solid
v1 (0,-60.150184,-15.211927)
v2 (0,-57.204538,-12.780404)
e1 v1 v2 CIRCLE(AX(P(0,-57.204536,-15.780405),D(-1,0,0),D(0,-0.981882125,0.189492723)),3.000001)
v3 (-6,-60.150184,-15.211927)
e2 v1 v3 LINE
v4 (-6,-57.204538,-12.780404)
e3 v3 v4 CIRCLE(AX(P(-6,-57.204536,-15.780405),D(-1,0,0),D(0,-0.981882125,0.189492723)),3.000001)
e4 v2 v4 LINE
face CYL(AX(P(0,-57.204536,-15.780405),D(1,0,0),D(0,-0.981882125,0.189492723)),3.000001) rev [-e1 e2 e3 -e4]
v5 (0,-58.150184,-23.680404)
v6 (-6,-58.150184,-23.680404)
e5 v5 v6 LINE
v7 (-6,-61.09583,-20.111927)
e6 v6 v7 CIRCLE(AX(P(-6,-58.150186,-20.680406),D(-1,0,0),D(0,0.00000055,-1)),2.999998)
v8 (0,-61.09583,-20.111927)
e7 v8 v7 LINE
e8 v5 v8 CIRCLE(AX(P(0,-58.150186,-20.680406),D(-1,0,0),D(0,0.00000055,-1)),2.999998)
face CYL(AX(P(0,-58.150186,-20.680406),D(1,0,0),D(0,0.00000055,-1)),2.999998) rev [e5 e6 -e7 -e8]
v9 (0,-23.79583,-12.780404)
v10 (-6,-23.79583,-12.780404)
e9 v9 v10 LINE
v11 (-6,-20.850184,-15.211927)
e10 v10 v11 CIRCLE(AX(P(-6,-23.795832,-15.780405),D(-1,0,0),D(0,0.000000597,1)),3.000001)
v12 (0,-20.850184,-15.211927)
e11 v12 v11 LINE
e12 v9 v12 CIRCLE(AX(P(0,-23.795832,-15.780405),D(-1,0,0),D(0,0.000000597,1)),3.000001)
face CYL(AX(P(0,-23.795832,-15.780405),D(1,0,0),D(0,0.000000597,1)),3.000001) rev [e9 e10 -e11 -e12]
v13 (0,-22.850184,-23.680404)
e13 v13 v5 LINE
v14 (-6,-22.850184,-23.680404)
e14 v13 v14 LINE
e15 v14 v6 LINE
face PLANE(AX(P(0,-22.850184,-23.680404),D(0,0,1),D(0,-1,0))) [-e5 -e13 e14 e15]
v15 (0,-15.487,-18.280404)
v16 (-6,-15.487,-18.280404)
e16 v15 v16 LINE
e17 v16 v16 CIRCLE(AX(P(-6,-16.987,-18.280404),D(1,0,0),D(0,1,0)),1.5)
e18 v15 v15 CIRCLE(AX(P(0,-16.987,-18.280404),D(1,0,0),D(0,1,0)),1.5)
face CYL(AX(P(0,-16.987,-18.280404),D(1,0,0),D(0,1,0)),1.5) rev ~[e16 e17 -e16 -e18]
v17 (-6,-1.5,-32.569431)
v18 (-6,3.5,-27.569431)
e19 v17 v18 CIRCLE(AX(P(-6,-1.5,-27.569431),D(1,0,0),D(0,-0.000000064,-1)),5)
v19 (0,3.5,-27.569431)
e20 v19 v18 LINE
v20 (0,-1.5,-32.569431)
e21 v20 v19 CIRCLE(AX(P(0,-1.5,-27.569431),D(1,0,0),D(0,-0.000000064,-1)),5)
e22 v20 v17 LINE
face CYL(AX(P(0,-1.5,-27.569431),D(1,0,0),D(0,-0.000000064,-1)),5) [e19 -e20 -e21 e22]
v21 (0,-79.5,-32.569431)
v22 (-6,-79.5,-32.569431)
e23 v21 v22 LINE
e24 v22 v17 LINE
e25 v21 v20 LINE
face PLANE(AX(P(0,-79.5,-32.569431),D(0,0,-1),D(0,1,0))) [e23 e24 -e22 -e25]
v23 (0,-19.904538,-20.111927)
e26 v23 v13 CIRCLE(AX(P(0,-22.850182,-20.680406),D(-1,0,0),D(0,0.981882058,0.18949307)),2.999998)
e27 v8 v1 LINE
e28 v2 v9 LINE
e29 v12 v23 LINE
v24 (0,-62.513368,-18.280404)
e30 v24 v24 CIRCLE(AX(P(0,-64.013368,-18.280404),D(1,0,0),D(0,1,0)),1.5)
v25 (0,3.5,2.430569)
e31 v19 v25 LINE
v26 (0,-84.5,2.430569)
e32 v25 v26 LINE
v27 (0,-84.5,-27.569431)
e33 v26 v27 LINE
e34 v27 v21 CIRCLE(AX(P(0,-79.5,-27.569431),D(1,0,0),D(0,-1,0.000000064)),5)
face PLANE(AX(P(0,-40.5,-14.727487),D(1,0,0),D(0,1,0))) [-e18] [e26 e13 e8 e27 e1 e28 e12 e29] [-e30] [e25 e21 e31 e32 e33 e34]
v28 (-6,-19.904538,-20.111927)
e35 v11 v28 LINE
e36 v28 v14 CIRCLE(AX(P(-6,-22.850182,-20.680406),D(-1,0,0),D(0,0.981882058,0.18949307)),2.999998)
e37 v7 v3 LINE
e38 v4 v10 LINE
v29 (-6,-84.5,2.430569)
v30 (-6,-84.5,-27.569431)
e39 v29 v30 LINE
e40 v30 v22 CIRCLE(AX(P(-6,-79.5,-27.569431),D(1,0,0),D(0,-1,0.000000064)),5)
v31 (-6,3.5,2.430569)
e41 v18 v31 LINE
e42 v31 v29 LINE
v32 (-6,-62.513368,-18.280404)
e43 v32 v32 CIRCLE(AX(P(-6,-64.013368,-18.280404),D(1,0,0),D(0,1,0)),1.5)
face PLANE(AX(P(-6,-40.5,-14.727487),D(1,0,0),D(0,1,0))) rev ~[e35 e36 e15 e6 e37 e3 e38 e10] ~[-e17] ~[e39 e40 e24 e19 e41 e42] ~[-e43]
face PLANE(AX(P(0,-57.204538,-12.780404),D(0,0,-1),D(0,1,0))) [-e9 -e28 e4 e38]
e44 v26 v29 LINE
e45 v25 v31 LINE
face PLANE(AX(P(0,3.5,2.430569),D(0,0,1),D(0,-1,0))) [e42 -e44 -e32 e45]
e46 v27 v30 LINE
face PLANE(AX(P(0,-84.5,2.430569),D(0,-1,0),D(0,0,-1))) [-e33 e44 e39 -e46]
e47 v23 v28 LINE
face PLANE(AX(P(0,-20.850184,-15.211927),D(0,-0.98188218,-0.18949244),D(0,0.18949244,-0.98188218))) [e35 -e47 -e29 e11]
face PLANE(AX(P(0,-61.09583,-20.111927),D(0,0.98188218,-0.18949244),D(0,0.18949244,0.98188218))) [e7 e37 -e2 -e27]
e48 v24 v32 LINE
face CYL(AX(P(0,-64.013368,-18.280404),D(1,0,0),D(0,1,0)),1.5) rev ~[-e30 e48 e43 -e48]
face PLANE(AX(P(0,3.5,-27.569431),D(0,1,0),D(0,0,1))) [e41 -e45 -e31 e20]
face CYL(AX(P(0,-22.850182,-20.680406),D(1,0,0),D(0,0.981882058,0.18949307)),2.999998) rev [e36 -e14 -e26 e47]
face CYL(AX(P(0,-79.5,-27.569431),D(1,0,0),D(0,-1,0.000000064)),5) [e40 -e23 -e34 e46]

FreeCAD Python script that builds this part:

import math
import FreeCAD as App
import Part
import Sketcher

doc = App.newDocument("Part")
params = doc.addObject("Spreadsheet::Sheet", "Params")
for row, (alias, value) in enumerate([
    ("sketch1_diameter", "3 mm"),
    ("sketch1_radius", "5 mm"),
    ("sketch1_radius2", "2.999998 mm"),
    ("sketch1_radius3", "3.000001 mm"),
    ("sketch1_width", "78 mm"),
    ("pad1_length", "6 mm"),
], start=1):
    params.set(f"A{row}", alias)
    params.set(f"B{row}", "=" + value)
    params.setAlias(f"B{row}", alias)

body = doc.addObject("PartDesign::Body", "Body")

# Sketch on YZ plane
sketch1 = body.newObject("Sketcher::SketchObject", "Sketch")
sketch1.AttachmentSupport = (doc.getObject("YZ_Plane"), [""])
sketch1.MapMode = "FlatFace"
sketch1.addGeometry([
    Part.LineSegment(App.Vector(-84.5, 2.4, 0), App.Vector(-84.5, -27.6, 0)),  # 0
    Part.ArcOfCircle(Part.Circle(App.Vector(-79.5, -27.6, 0), App.Vector(0, 0, 1), 5), math.radians(180), math.radians(270)),  # 1
    Part.LineSegment(App.Vector(-79.5, -32.6, 0), App.Vector(-1.5, -32.6, 0)),  # 2
    Part.ArcOfCircle(Part.Circle(App.Vector(-1.5, -27.6, 0), App.Vector(0, 0, 1), 5), math.radians(-90), math.radians(0)),  # 3
    Part.LineSegment(App.Vector(3.5, -27.6, 0), App.Vector(3.5, 2.4, 0)),  # 4
    Part.LineSegment(App.Vector(3.5, 2.4, 0), App.Vector(-84.5, 2.4, 0)),  # 5
    Part.Circle(App.Vector(-64, -18.3, 0), App.Vector(0, 0, 1), 1.5),  # 6
    Part.Circle(App.Vector(-17, -18.3, 0), App.Vector(0, 0, 1), 1.5),  # 7
    Part.ArcOfCircle(Part.Circle(App.Vector(-58.2, -20.7, 0), App.Vector(0, 0, 1), 3), math.radians(169), math.radians(270)),  # 8
    Part.LineSegment(App.Vector(-61.1, -20.1, 0), App.Vector(-60.2, -15.2, 0)),  # 9
    Part.ArcOfCircle(Part.Circle(App.Vector(-57.2, -15.8, 0), App.Vector(0, 0, 1), 3), math.radians(90), math.radians(169)),  # 10
    Part.LineSegment(App.Vector(-57.2, -12.8, 0), App.Vector(-23.8, -12.8, 0)),  # 11
    Part.ArcOfCircle(Part.Circle(App.Vector(-23.8, -15.8, 0), App.Vector(0, 0, 1), 3), math.radians(11), math.radians(90)),  # 12
    Part.LineSegment(App.Vector(-20.9, -15.2, 0), App.Vector(-19.9, -20.1, 0)),  # 13
    Part.ArcOfCircle(Part.Circle(App.Vector(-22.9, -20.7, 0), App.Vector(0, 0, 1), 3), math.radians(-90), math.radians(11)),  # 14
    Part.LineSegment(App.Vector(-22.9, -23.7, 0), App.Vector(-58.2, -23.7, 0)),  # 15
], False)
sketch1.addConstraint([
    Sketcher.Constraint("Tangent", 0, 2, 1, 1),
    Sketcher.Constraint("Tangent", 1, 2, 2, 1),
    Sketcher.Constraint("Tangent", 2, 2, 3, 1),
    Sketcher.Constraint("Tangent", 3, 2, 4, 1),
    Sketcher.Constraint("Coincident", 4, 2, 5, 1),
    Sketcher.Constraint("Coincident", 5, 2, 0, 1),
    Sketcher.Constraint("Tangent", 8, 1, 9, 1),
    Sketcher.Constraint("Tangent", 9, 2, 10, 2),
    Sketcher.Constraint("Tangent", 10, 1, 11, 1),
    Sketcher.Constraint("Tangent", 11, 2, 12, 2),
    Sketcher.Constraint("Tangent", 12, 1, 13, 1),
    Sketcher.Constraint("Tangent", 13, 2, 14, 2),
    Sketcher.Constraint("Tangent", 14, 1, 15, 1),
    Sketcher.Constraint("Tangent", 15, 2, 8, 2),
    Sketcher.Constraint("Vertical", 0),
    Sketcher.Constraint("Horizontal", 2),
    Sketcher.Constraint("Vertical", 4),
    Sketcher.Constraint("Horizontal", 5),
    Sketcher.Constraint("Horizontal", 11),
    Sketcher.Constraint("Horizontal", 15),
    Sketcher.Constraint("Equal", 1, 3),
    Sketcher.Constraint("Equal", 6, 7),
    Sketcher.Constraint("Equal", 10, 12),
    Sketcher.Constraint("Equal", 8, 14),
    Sketcher.Constraint("Horizontal", 6, 3, 7, 3),
    Sketcher.Constraint("Horizontal", 9, 2, 12, 1),
    Sketcher.Constraint("Diameter", 6, 3.0),
    Sketcher.Constraint("Radius", 1, 5.0),
    Sketcher.Constraint("Radius", 8, 2.999998),
    Sketcher.Constraint("Radius", 10, 3.000001),
    Sketcher.Constraint("DistanceX", 2, 1, 2, 2, 78.0),
    Sketcher.Constraint("DistanceY", 0, 2, 0, 1, 30.0),
    Sketcher.Constraint("DistanceX", 15, 2, 15, 1, 35.3),
    Sketcher.Constraint("DistanceX", 9, 2, 8, 3, 1.999998),
    Sketcher.Constraint("DistanceX", 1, 3, -1, 1, 79.5),
    Sketcher.Constraint("DistanceY", 8, 3, 6, 3, 2.400002),
    Sketcher.Constraint("DistanceY", 8, 3, 10, 3, 4.9),
    Sketcher.Constraint("DistanceX", 7, 3, -1, 1, 16.987),
    Sketcher.Constraint("DistanceY", 1, 3, -1, 1, 27.569431),
    Sketcher.Constraint("DistanceX", 6, 3, -1, 1, 64.013368),
    Sketcher.Constraint("DistanceX", 12, 3, -1, 1, 23.795832),
    Sketcher.Constraint("DistanceY", 6, 3, -1, 1, 18.280404),
])
sketch1.setExpression("Constraints[26]", "Params.sketch1_diameter")
sketch1.setExpression("Constraints[27]", "Params.sketch1_radius")
sketch1.setExpression("Constraints[28]", "Params.sketch1_radius2")
sketch1.setExpression("Constraints[29]", "Params.sketch1_radius3")
sketch1.setExpression("Constraints[30]", "Params.sketch1_width")
pad1 = body.newObject("PartDesign::Pad", "Pad")
pad1.Profile = sketch1
pad1.setExpression("Length", "Params.pad1_length")
pad1.Reversed = True

doc.recompute()
